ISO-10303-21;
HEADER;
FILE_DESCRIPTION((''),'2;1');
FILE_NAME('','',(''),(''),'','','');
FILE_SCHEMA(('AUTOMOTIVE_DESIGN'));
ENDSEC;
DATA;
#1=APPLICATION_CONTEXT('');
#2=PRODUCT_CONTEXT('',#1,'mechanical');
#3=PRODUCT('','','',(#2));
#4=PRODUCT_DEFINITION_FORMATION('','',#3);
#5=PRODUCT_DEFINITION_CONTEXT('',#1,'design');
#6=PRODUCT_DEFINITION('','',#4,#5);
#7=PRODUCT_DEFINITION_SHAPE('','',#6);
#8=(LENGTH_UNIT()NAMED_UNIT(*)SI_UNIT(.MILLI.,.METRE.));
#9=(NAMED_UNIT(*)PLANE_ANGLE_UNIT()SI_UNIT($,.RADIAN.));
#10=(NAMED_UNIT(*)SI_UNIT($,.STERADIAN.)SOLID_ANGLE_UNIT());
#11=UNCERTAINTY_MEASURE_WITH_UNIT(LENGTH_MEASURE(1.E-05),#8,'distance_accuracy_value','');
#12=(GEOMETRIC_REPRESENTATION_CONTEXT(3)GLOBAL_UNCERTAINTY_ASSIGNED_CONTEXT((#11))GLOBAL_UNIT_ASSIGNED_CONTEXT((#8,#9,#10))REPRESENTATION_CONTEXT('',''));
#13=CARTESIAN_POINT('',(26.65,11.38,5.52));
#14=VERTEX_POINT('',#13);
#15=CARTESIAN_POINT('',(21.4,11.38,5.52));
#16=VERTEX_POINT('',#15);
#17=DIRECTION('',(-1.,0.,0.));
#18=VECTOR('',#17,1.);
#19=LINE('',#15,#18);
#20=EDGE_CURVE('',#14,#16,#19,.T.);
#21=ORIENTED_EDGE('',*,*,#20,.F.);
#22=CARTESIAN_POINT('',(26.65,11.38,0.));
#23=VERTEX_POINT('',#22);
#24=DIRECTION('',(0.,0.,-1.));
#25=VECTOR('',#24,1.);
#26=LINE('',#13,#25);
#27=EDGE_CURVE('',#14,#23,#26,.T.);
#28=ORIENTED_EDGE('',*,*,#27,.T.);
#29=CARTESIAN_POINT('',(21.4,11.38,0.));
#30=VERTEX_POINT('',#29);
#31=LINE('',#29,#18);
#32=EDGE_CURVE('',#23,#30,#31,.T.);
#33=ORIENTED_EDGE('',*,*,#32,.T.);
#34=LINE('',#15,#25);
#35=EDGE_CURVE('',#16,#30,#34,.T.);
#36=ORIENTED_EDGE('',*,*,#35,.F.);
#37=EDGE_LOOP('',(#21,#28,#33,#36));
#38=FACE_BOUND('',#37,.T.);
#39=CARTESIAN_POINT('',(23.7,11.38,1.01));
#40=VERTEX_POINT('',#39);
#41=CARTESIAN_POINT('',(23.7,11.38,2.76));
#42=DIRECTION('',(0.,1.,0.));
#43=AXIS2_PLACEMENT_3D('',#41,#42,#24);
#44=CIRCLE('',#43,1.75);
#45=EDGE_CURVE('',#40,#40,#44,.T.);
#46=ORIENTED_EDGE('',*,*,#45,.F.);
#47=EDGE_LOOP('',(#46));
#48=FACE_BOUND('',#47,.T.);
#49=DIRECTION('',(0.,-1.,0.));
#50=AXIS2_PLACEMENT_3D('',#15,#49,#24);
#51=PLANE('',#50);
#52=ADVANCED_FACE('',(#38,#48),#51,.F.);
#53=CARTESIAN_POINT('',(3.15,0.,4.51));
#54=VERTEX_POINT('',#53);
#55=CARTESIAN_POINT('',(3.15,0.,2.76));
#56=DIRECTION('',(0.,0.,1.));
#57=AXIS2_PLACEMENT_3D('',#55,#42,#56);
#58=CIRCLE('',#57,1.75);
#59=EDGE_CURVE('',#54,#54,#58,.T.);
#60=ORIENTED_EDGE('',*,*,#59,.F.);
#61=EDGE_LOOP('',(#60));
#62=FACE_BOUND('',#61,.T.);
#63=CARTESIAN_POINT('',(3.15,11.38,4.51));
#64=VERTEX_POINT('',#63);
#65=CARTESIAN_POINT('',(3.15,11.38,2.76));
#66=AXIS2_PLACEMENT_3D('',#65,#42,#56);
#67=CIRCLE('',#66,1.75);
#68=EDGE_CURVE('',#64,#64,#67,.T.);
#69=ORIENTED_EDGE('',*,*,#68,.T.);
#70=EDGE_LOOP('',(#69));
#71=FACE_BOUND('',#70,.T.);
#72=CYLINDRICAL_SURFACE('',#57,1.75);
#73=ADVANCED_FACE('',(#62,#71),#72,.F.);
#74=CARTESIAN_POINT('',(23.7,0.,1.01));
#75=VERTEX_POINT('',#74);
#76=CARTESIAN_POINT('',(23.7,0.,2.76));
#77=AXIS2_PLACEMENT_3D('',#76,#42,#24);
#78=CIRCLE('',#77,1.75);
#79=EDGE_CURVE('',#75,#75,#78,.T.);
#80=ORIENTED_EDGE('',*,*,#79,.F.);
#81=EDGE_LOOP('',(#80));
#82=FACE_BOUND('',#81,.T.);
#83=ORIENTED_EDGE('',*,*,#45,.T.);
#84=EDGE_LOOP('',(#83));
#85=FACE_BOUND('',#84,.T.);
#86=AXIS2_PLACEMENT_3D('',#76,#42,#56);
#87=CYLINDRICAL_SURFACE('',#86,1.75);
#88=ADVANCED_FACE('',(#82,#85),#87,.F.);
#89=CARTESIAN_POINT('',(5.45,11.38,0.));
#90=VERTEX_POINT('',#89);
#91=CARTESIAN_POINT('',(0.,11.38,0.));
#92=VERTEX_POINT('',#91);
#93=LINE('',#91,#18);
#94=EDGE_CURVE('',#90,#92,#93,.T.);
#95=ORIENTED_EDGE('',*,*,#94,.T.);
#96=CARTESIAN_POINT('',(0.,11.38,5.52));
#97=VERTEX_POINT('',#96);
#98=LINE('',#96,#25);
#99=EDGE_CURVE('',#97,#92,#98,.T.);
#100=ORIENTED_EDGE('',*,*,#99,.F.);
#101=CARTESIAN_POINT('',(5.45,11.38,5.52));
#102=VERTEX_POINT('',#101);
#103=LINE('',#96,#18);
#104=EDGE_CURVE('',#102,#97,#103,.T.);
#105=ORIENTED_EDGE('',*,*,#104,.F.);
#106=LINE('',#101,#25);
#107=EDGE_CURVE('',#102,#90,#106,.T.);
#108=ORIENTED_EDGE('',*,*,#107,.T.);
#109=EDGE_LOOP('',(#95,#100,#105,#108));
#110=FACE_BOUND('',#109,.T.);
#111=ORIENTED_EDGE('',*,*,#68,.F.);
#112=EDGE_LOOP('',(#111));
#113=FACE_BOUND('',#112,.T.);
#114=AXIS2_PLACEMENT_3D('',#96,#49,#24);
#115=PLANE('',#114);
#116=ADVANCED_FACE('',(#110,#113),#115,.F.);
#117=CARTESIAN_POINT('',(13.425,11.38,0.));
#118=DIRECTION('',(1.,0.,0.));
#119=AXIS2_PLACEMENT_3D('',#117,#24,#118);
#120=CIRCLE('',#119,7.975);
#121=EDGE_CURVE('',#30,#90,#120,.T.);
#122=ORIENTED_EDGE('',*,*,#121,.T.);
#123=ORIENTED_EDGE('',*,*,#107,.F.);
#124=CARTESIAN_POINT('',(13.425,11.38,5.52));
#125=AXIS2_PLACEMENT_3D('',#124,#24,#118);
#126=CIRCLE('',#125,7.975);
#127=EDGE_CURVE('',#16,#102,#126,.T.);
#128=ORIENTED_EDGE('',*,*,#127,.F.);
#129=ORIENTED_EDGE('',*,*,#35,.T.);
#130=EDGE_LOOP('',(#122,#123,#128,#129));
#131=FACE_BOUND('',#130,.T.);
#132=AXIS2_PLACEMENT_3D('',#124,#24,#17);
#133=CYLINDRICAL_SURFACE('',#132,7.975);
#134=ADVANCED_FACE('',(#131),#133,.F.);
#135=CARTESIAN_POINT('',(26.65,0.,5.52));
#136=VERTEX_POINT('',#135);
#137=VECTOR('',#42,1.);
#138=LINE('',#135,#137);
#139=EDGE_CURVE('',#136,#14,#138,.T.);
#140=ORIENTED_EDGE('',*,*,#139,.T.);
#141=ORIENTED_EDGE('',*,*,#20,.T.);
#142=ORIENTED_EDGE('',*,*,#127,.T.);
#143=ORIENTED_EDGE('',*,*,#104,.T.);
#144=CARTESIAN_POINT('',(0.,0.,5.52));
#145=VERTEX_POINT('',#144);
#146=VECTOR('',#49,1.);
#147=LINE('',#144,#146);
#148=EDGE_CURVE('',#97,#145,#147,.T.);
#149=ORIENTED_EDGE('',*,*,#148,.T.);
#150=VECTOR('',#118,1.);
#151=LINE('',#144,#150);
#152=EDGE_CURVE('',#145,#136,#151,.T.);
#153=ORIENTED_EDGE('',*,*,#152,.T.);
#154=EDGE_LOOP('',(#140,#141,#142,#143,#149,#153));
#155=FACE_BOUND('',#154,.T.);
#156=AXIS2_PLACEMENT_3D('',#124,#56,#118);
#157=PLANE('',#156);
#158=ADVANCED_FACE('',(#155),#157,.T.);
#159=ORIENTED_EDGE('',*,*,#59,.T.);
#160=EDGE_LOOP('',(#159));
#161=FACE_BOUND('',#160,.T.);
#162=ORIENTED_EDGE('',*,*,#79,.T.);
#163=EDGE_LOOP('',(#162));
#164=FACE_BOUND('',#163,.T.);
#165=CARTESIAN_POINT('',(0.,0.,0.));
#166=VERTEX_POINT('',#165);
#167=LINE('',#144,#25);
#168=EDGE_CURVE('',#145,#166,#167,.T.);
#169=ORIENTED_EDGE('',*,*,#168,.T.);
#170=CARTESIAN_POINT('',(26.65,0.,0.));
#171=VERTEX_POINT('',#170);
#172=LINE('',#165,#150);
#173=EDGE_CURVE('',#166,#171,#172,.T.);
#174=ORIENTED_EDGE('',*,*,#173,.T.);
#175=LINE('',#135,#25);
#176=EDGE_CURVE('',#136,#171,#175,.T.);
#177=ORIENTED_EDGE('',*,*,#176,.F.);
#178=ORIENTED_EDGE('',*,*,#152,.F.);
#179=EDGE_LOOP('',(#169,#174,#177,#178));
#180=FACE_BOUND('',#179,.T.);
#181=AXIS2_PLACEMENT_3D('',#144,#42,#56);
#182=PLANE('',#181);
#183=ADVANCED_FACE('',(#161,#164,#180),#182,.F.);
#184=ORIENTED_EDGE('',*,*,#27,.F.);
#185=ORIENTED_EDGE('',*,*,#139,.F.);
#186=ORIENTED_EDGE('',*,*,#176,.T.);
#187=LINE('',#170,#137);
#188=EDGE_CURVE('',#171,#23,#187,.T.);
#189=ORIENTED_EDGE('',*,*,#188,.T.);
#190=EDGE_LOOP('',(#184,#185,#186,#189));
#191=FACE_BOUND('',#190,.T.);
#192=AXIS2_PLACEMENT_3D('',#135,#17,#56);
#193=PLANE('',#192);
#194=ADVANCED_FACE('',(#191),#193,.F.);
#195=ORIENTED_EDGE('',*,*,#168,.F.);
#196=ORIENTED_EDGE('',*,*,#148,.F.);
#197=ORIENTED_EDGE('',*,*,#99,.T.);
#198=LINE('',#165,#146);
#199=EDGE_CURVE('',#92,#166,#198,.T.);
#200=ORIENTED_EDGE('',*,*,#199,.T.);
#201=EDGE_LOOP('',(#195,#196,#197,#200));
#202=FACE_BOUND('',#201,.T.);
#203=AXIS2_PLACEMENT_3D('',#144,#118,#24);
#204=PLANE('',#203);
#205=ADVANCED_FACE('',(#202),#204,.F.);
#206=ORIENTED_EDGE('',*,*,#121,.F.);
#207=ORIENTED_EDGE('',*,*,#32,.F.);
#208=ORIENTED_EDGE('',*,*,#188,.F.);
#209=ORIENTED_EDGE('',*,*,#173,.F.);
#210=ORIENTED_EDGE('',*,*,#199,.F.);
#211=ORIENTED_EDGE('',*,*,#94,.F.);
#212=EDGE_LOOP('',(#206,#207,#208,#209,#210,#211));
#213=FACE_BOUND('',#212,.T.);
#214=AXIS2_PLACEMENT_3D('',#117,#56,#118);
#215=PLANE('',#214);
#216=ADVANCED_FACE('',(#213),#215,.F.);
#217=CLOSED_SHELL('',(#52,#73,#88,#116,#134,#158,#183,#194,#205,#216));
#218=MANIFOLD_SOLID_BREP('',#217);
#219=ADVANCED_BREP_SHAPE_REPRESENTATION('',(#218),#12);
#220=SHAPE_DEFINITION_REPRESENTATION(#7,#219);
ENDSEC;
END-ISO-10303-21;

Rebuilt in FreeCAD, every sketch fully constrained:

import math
import FreeCAD as App
import Part
import Sketcher

doc = App.newDocument("Part")
body = doc.addObject("PartDesign::Body", "Body")

sketch1 = doc.addObject("Sketcher::SketchObject", "Sketch")
body.addObject(sketch1)
sketch1.AttachmentSupport = (doc.XY_Plane, [""])
sketch1.MapMode = "FlatFace"
sketch1.addGeometry([
    Part.LineSegment(App.Vector(27, 11, 0), App.Vector(21, 11, 0)),
    Part.ArcOfCircle(Part.Circle(App.Vector(13, 11, 0), App.Vector(0, 0, 1), 8), math.radians(180), math.radians(360)),
    Part.LineSegment(App.Vector(5, 11, 0), App.Vector(0, 11, 0)),
    Part.LineSegment(App.Vector(0, 11, 0), App.Vector(0, 0, 0)),
    Part.LineSegment(App.Vector(0, 0, 0), App.Vector(27, 0, 0)),
    Part.LineSegment(App.Vector(27, 0, 0), App.Vector(27, 11, 0)),
], False)
sketch1.addConstraint([
    Sketcher.Constraint("Coincident", 0, 2, 1, 2),
    Sketcher.Constraint("Coincident", 1, 1, 2, 1),
    Sketcher.Constraint("Coincident", 2, 2, 3, 1),
    Sketcher.Constraint("Coincident", 3, 2, 4, 1),
    Sketcher.Constraint("Coincident", 4, 2, 5, 1),
    Sketcher.Constraint("Coincident", 5, 2, 0, 1),
    Sketcher.Constraint("Horizontal", 0),
    Sketcher.Constraint("Horizontal", 2),
    Sketcher.Constraint("Vertical", 3),
    Sketcher.Constraint("Horizontal", 4),
    Sketcher.Constraint("Vertical", 5),
    Sketcher.Constraint("Coincident", 3, 2, -1, 1),
    Sketcher.Constraint("Horizontal", 1, 3, 0, 2),
    Sketcher.Constraint("Horizontal", 0, 2, 1, 1),
    Sketcher.Constraint("Radius", 1, 7.975),
    Sketcher.Constraint("DistanceX", 0, 2, 0, 1, 5.25),
    Sketcher.Constraint("DistanceX", 2, 2, 2, 1, 5.45),
    Sketcher.Constraint("DistanceY", 3, 2, 3, 1, 11.38),
])
pad1 = doc.addObject("PartDesign::Pad", "Pad")
body.addObject(pad1)
pad1.Profile = sketch1
pad1.Length = 5.52

sketch2 = doc.addObject("Sketcher::SketchObject", "Sketch001")
body.addObject(sketch2)
sketch2.AttachmentSupport = (doc.XZ_Plane, [""])
sketch2.MapMode = "FlatFace"
sketch2.AttachmentOffset = App.Placement(App.Vector(0, 0, -11.38), App.Rotation())
sketch2.addGeometry([
    Part.Circle(App.Vector(3.1, 2.8, 0), App.Vector(0, 0, 1), 1.8),
    Part.Circle(App.Vector(23.7, 2.8, 0), App.Vector(0, 0, 1), 1.8),
], False)
sketch2.addConstraint([
    Sketcher.Constraint("Equal", 0, 1),
    Sketcher.Constraint("Horizontal", 0, 3, 1, 3),
    Sketcher.Constraint("Diameter", 0, 3.5),
    Sketcher.Constraint("DistanceX", -1, 1, 1, 3, 23.7),
    Sketcher.Constraint("DistanceX", -1, 1, 0, 3, 3.15),
    Sketcher.Constraint("DistanceY", -1, 1, 0, 3, 2.76),
])
pocket1 = doc.addObject("PartDesign::Pocket", "Pocket")
body.addObject(pocket1)
pocket1.Profile = sketch2
pocket1.Type = "ThroughAll"
pocket1.Reversed = True

doc.recompute()
